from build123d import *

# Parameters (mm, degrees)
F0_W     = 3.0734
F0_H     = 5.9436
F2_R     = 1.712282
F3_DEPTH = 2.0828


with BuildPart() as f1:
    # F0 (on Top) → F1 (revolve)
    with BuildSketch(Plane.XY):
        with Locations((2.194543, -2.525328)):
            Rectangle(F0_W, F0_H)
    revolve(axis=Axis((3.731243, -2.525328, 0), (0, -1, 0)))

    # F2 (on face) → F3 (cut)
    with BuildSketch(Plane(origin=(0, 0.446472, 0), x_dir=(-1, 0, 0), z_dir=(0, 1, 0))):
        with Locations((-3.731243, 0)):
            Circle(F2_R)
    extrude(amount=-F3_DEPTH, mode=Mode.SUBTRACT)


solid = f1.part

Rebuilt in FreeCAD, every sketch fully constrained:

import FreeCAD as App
import Part
import Sketcher

V = App.Vector
Q = App.Units.Quantity


def add_polygon(sketch, points):
    """Adds a closed chain of lines whose ends are joined by coincident constraints."""
    first, n = sketch.GeometryCount, len(points)
    for a, b in zip(points, points[1:] + points[:1]):
        sketch.addGeometry(Part.LineSegment(App.Vector(*a, 0), App.Vector(*b, 0)), False)
    for i in range(n):
        sketch.addConstraint(Sketcher.Constraint("Coincident", first + i, 2, first + (i + 1) % n, 1))

doc = App.newDocument("Part")
params = doc.addObject("Spreadsheet::Sheet", "Params")
for row, (alias, value) in enumerate([
    ("sketch1_width", "0.121 in"),
    ("sketch1_height", "0.234 in"),
    ("revolution_angle", "360 deg"),
    ("pocket1_length", "0.082 in"),
], start=1):
    params.set(f"A{row}", alias)
    params.set(f"B{row}", "=" + value)
    params.setAlias(f"B{row}", alias)

body = doc.addObject("PartDesign::Body", "Body")

# Sketch on XY plane
sketch1 = body.newObject("Sketcher::SketchObject", "Sketch")
sketch1.AttachmentSupport = (doc.getObject("XY_Plane"), [""])
sketch1.MapMode = "FlatFace"
add_polygon(sketch1, [(0.7, 0.4), (0.7, -5.5), (3.7, -5.5), (3.7, 0.4)])  # lines 0-3
sketch1.addGeometry(Part.LineSegment(V(3.7, 0.4, 0), V(3.7, -5.5, 0)), True)  # axis
sketch1.addConstraint([
    Sketcher.Constraint("Vertical", 0),
    Sketcher.Constraint("Horizontal", 1),
    Sketcher.Constraint("Vertical", 2),
    Sketcher.Constraint("Horizontal", 3),
    Sketcher.Constraint("Vertical", 4),
    Sketcher.Constraint("Coincident", 4, 1, 2, 2),
    Sketcher.Constraint("Horizontal", 0, 2, 4, 2),
    Sketcher.Constraint("DistanceX", 1, 1, 1, 2, Q("0.121 in")),
    Sketcher.Constraint("DistanceY", 0, 2, 0, 1, Q("0.234 in")),
    Sketcher.Constraint("DistanceX", -1, 1, 0, 2, Q("0.657843 mm")),
    Sketcher.Constraint("DistanceY", 0, 2, -1, 1, Q("5.497128 mm")),
])
sketch1.setExpression("Constraints[11]", "Params.sketch1_width")
sketch1.setExpression("Constraints[12]", "Params.sketch1_height")
revolution = body.newObject("PartDesign::Revolution", "Revolution")
revolution.Profile = sketch1
revolution.ReferenceAxis = (sketch1, ["Axis0"])
revolution.setExpression("Angle", "Params.revolution_angle")

# Sketch on XZ plane
sketch2 = body.newObject("Sketcher::SketchObject", "Sketch001")
sketch2.AttachmentSupport = (doc.getObject("XZ_Plane"), [""])
sketch2.MapMode = "FlatFace"
sketch2.AttachmentOffset = App.Placement(V(0, 0, -0.446472), App.Rotation())
sketch2.addGeometry(Part.Circle(V(3.7, 0, 0), V(0, 0, 1), 1.7), False)
sketch2.addConstraint([
    Sketcher.Constraint("PointOnObject", 0, 3, -1),
    Sketcher.Constraint("Diameter", 0, Q("3.424564 mm")),
    Sketcher.Constraint("DistanceX", -1, 1, 0, 3, Q("3.731243 mm")),
])
pocket1 = body.newObject("PartDesign::Pocket", "Pocket")
pocket1.Profile = sketch2
pocket1.setExpression("Length", "Params.pocket1_length")
pocket1.Reversed = True

doc.recompute()
